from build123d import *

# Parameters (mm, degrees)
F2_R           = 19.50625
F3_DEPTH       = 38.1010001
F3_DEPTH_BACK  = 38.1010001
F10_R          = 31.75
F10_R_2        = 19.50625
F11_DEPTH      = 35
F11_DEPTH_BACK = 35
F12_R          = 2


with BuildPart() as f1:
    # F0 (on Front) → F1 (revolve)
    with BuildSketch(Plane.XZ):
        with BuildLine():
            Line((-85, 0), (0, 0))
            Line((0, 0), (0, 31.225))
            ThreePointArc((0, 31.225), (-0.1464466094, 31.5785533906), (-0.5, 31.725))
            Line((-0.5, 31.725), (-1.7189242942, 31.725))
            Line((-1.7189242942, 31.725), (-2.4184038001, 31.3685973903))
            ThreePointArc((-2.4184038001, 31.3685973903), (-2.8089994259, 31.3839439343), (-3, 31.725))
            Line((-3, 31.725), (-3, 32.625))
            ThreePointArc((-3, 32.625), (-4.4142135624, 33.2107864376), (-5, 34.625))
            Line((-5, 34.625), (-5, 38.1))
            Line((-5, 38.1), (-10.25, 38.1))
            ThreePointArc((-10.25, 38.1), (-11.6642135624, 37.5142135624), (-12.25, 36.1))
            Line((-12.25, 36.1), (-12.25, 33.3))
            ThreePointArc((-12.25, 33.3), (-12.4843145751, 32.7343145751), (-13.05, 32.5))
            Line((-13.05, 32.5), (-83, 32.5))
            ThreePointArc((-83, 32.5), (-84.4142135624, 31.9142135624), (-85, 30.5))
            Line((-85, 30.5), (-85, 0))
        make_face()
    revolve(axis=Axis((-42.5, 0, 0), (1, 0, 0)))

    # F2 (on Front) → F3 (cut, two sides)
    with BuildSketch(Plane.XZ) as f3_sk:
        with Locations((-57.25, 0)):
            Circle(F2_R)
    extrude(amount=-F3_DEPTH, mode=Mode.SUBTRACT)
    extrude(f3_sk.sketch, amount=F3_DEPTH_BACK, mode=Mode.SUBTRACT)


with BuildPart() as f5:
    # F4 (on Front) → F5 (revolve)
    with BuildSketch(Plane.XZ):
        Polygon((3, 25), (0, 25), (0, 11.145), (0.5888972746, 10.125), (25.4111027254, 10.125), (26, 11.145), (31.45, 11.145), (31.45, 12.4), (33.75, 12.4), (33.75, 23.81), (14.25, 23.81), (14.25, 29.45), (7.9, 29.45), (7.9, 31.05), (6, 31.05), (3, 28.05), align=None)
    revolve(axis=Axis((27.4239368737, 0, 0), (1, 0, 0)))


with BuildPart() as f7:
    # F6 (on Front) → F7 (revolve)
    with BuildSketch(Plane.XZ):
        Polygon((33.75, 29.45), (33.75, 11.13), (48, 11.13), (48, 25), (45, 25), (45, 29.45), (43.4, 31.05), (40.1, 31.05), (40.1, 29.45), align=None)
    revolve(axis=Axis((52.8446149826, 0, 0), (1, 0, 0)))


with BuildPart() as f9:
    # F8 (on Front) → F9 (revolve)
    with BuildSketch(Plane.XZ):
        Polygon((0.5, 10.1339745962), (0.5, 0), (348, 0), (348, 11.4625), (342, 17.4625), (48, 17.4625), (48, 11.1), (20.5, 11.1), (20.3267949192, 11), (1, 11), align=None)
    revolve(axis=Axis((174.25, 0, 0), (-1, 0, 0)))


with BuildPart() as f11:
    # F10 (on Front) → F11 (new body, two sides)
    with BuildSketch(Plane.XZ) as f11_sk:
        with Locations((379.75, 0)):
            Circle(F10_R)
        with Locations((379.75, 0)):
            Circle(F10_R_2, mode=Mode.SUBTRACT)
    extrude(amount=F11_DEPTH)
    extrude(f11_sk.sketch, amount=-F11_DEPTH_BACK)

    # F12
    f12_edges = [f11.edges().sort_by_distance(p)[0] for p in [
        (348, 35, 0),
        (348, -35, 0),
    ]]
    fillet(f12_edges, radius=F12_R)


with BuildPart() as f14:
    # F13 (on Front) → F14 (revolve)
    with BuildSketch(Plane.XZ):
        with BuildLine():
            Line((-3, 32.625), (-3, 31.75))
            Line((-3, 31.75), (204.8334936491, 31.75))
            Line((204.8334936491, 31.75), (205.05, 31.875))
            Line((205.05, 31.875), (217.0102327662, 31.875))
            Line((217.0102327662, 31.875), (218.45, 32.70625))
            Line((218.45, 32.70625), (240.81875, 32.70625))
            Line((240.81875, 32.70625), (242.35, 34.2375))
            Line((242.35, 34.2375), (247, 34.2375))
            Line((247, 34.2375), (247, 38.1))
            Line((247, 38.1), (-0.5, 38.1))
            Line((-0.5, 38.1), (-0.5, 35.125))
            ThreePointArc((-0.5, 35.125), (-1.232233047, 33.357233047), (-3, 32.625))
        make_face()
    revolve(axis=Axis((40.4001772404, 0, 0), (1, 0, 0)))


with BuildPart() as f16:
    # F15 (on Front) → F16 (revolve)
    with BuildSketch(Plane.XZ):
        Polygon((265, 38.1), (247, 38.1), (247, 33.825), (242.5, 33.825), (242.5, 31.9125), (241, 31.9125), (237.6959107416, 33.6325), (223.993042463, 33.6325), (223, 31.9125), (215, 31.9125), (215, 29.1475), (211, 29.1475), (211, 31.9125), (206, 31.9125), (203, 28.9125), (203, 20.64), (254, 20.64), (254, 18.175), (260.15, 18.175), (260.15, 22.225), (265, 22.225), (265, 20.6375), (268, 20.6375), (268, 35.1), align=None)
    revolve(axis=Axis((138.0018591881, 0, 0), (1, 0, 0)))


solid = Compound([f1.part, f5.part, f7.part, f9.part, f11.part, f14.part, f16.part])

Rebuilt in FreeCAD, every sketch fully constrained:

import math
import FreeCAD as App
import Part
import Sketcher
Q = App.Units.Quantity


def edges_at(feature, points):
    """Names of the edges that pass closest to the given points."""
    edges = feature.Shape.Edges
    near = lambda p: min(range(len(edges)), key=lambda i: edges[i].distToShape(Part.Vertex(*p))[0])
    return sorted({f"Edge{near(p) + 1}" for p in points})


def add_polygon(sketch, points):
    """Adds a closed chain of lines whose ends are joined by coincident constraints."""
    first, n = sketch.GeometryCount, len(points)
    for a, b in zip(points, points[1:] + points[:1]):
        sketch.addGeometry(Part.LineSegment(App.Vector(*a, 0), App.Vector(*b, 0)), False)
    for i in range(n):
        sketch.addConstraint(Sketcher.Constraint("Coincident", first + i, 2, first + (i + 1) % n, 1))

doc = App.newDocument("Part")
params = doc.addObject("Spreadsheet::Sheet", "Params")
for row, (alias, value) in enumerate([
    ("sketch1_radius", "2 mm"),
    ("sketch1_radius2", "0.5 mm"),
    ("sketch1_radius3", "0.4 mm"),
    ("sketch1_radius4", "0.8 mm"),
    ("sketch1_width", "85 mm"),
    ("revolution_angle", "360 deg"),
    ("sketch3_width", "3 mm"),
    ("sketch3_width2", "2.3 mm"),
    ("sketch3_width3", "19.5 mm"),
    ("sketch3_width4", "1.9 mm"),
    ("sketch3_height", "1.6 mm"),
    ("revolution2_angle", "360 deg"),
    ("sketch4_width", "3 mm"),
    ("sketch4_width2", "3.3 mm"),
    ("sketch4_height", "1.6 mm"),
    ("sketch4_width3", "14.25 mm"),
    ("sketch4_height2", "18.32 mm"),
    ("revolution3_angle", "360 deg"),
    ("sketch5_width", "294 mm"),
    ("sketch5_length", "1 mm"),
    ("sketch5_width2", "347.5 mm"),
    ("sketch5_width3", "27.5 mm"),
    ("sketch5_length2", "0.2 mm"),
    ("revolution4_angle", "360 deg"),
    ("sketch6_diameter", "63.5 mm"),
    ("pad1_length", "35 mm"),
    ("pad1_length2", "35 mm"),
    ("fillet_radius", "2 mm"),
    ("sketch7_radius", "2.5 mm"),
    ("sketch7_width", "247.5 mm"),
    ("sketch7_width2", "4.65 mm"),
    ("sketch7_length", "0.25 mm"),
    ("revolution5_angle", "360 deg"),
    ("sketch8_width", "18 mm"),
    ("sketch8_width2", "8 mm"),
    ("sketch8_width3", "4 mm"),
    ("sketch8_width4", "5 mm"),
    ("sketch8_width5", "51 mm"),
    ("revolution6_angle", "360 deg"),
], start=1):
    params.set(f"A{row}", alias)
    params.set(f"B{row}", "=" + value)
    params.setAlias(f"B{row}", alias)

body = doc.addObject("PartDesign::Body", "Body")

# Sketch on XZ plane
sketch1 = body.newObject("Sketcher::SketchObject", "Sketch")
sketch1.AttachmentSupport = (doc.getObject("XZ_Plane"), [""])
sketch1.MapMode = "FlatFace"
sketch1.addGeometry([
    Part.LineSegment(App.Vector(-85, 0, 0), App.Vector(0, 0, 0)),  # 0
    Part.LineSegment(App.Vector(0, 0, 0), App.Vector(0, 31.23, 0)),  # 1
    Part.ArcOfCircle(Part.Circle(App.Vector(-0.5, 31.23, 0), App.Vector(0, 0, 1), 0.5), math.radians(0), math.radians(90)),  # 2
    Part.LineSegment(App.Vector(-0.5, 31.73, 0), App.Vector(-1.72, 31.73, 0)),  # 3
    Part.LineSegment(App.Vector(-1.72, 31.73, 0), App.Vector(-2.42, 31.37, 0)),  # 4
    Part.ArcOfCircle(Part.Circle(App.Vector(-2.6, 31.73, 0), App.Vector(0, 0, 1), 0.4), math.radians(180), math.radians(297)),  # 5
    Part.LineSegment(App.Vector(-3, 31.73, 0), App.Vector(-3, 32.62, 0)),  # 6
    Part.ArcOfCircle(Part.Circle(App.Vector(-3, 34.62, 0), App.Vector(0, 0, 1), 2), math.radians(180), math.radians(270)),  # 7
    Part.LineSegment(App.Vector(-5, 34.62, 0), App.Vector(-5, 38.1, 0)),  # 8
    Part.LineSegment(App.Vector(-5, 38.1, 0), App.Vector(-10.25, 38.1, 0)),  # 9
    Part.ArcOfCircle(Part.Circle(App.Vector(-10.25, 36.1, 0), App.Vector(0, 0, 1), 2), math.radians(90), math.radians(180)),  # 10
    Part.LineSegment(App.Vector(-12.25, 36.1, 0), App.Vector(-12.25, 33.3, 0)),  # 11
    Part.ArcOfCircle(Part.Circle(App.Vector(-13.05, 33.3, 0), App.Vector(0, 0, 1), 0.8), math.radians(-90), math.radians(0)),  # 12
    Part.LineSegment(App.Vector(-13.05, 32.5, 0), App.Vector(-83, 32.5, 0)),  # 13
    Part.ArcOfCircle(Part.Circle(App.Vector(-83, 30.5, 0), App.Vector(0, 0, 1), 2), math.radians(90), math.radians(180)),  # 14
    Part.LineSegment(App.Vector(-85, 30.5, 0), App.Vector(-85, 0, 0)),  # 15
], False)
sketch1.addConstraint([
    Sketcher.Constraint("Coincident", 0, 2, 1, 1),
    Sketcher.Constraint("Tangent", 1, 2, 2, 1),
    Sketcher.Constraint("Tangent", 2, 2, 3, 1),
    Sketcher.Constraint("Coincident", 3, 2, 4, 1),
    Sketcher.Constraint("Tangent", 4, 2, 5, 2),
    Sketcher.Constraint("Tangent", 5, 1, 6, 1),
    Sketcher.Constraint("Coincident", 6, 2, 7, 2),
    Sketcher.Constraint("Tangent", 7, 1, 8, 1),
    Sketcher.Constraint("Coincident", 8, 2, 9, 1),
    Sketcher.Constraint("Tangent", 9, 2, 10, 1),
    Sketcher.Constraint("Tangent", 10, 2, 11, 1),
    Sketcher.Constraint("Tangent", 11, 2, 12, 2),
    Sketcher.Constraint("Tangent", 12, 1, 13, 1),
    Sketcher.Constraint("Tangent", 13, 2, 14, 1),
    Sketcher.Constraint("Tangent", 14, 2, 15, 1),
    Sketcher.Constraint("Coincident", 15, 2, 0, 1),
    Sketcher.Constraint("Horizontal", 0),
    Sketcher.Constraint("Vertical", 1),
    Sketcher.Constraint("Horizontal", 3),
    Sketcher.Constraint("Vertical", 6),
    Sketcher.Constraint("Vertical", 8),
    Sketcher.Constraint("Horizontal", 9),
    Sketcher.Constraint("Vertical", 11),
    Sketcher.Constraint("Horizontal", 13),
    Sketcher.Constraint("Vertical", 15),
    Sketcher.Constraint("Coincident", 0, 2, -1, 1),
    Sketcher.Constraint("Equal", 7, 10),
    Sketcher.Constraint("Equal", 10, 14),
    Sketcher.Constraint("Horizontal", 5, 3, 2, 2),
    Sketcher.Constraint("Vertical", 7, 3, 5, 1),
    Sketcher.Constraint("Radius", 7, 2.0),
    Sketcher.Constraint("Radius", 2, 0.5),
    Sketcher.Constraint("Radius", 5, 0.4),
    Sketcher.Constraint("Radius", 12, 0.8),
    Sketcher.Constraint("DistanceX", 0, 1, 0, 2, 85.0),
    Sketcher.Constraint("Angle", 4, Q("-153 deg")),
    Sketcher.Constraint("DistanceY", 6, 1, 6, 2, 0.9),
    Sketcher.Constraint("DistanceY", 11, 2, 11, 1, 2.8),
    Sketcher.Constraint("DistanceY", 15, 2, 15, 1, 30.5),
    Sketcher.Constraint("DistanceX", 7, 3, -1, 1, 3.0),
    Sketcher.Constraint("DistanceX", 9, 2, 9, 1, 5.25),
    Sketcher.Constraint("DistanceY", 1, 1, 1, 2, 31.225),
])
sketch1.setExpression("Constraints[30]", "Params.sketch1_radius")
sketch1.setExpression("Constraints[31]", "Params.sketch1_radius2")
sketch1.setExpression("Constraints[32]", "Params.sketch1_radius3")
sketch1.setExpression("Constraints[33]", "Params.sketch1_radius4")
sketch1.setExpression("Constraints[34]", "Params.sketch1_width")
revolution = body.newObject("PartDesign::Revolution", "Revolution")
revolution.Profile = sketch1
revolution.ReferenceAxis = (sketch1, ["H_Axis"])
revolution.setExpression("Angle", "Params.revolution_angle")

# Sketch on XZ plane
sketch2 = body.newObject("Sketcher::SketchObject", "Sketch001")
sketch2.AttachmentSupport = (doc.getObject("XZ_Plane"), [""])
sketch2.MapMode = "FlatFace"
sketch2.addGeometry(Part.Circle(App.Vector(-57, 0, 0), App.Vector(0, 0, 1), 20), False)
sketch2.addConstraint([
    Sketcher.Constraint("PointOnObject", 0, 3, -1),
    Sketcher.Constraint("Diameter", 0, 39.0125),
    Sketcher.Constraint("DistanceX", 0, 3, -1, 1, 57.25),
])
pocket1 = body.newObject("PartDesign::Pocket", "Pocket")
pocket1.Profile = sketch2
pocket1.Type = "ThroughAll"
pocket1.Midplane = True
body2 = doc.addObject("PartDesign::Body", "Body001")

# Sketch on XZ plane
sketch3 = body2.newObject("Sketcher::SketchObject", "Sketch002")
sketch3.AttachmentSupport = (doc.getObject("XZ_Plane001"), [""])
sketch3.MapMode = "FlatFace"
add_polygon(sketch3, [(3, 25), (0, 25), (0, 11.1), (0.6, 10.1), (25.4, 10.1), (26, 11.1), (31.4, 11.1), (31.4, 12.4), (33.8, 12.4), (33.8, 23.8), (14.2, 23.8), (14.2, 29.4), (7.9, 29.4), (7.9, 31.1), (6, 31.1), (3, 28.1)])  # lines 0-15
sketch3.addConstraint([
    Sketcher.Constraint("Horizontal", 0),
    Sketcher.Constraint("Vertical", 1),
    Sketcher.Constraint("Horizontal", 3),
    Sketcher.Constraint("Horizontal", 5),
    Sketcher.Constraint("Vertical", 6),
    Sketcher.Constraint("Horizontal", 7),
    Sketcher.Constraint("Vertical", 8),
    Sketcher.Constraint("Horizontal", 9),
    Sketcher.Constraint("Vertical", 10),
    Sketcher.Constraint("Horizontal", 11),
    Sketcher.Constraint("Vertical", 12),
    Sketcher.Constraint("Horizontal", 13),
    Sketcher.Constraint("Vertical", 15),
    Sketcher.Constraint("PointOnObject", 0, 2, -2),
    Sketcher.Constraint("Horizontal", 1, 2, 4, 2),
    Sketcher.Constraint("Equal", 2, 4),
    Sketcher.Constraint("DistanceX", 0, 2, 0, 1, 3.0),
    Sketcher.Constraint("Angle", 2, Q("-60 deg")),
    Sketcher.Constraint("Angle", 14, Q("-135 deg")),
    Sketcher.Constraint("DistanceX", 7, 1, 7, 2, 2.3),
    Sketcher.Constraint("DistanceX", 9, 2, 9, 1, 19.5),
    Sketcher.Constraint("DistanceX", 13, 2, 13, 1, 1.9),
    Sketcher.Constraint("DistanceY", 12, 1, 12, 2, 1.6),
    Sketcher.Constraint("DistanceY", -1, 1, 0, 2, 25.0),
    Sketcher.Constraint("DistanceX", -1, 1, 4, 2, 26.0),
    Sketcher.Constraint("DistanceX", -1, 1, 13, 2, 6.0),
    Sketcher.Constraint("DistanceX", 5, 1, 5, 2, 5.45),
    Sketcher.Constraint("DistanceY", 8, 1, 8, 2, 11.41),
    Sketcher.Constraint("DistanceY", 10, 1, 10, 2, 5.64),
    Sketcher.Constraint("DistanceY", 15, 2, 15, 1, 3.05),
    Sketcher.Constraint("DistanceY", 1, 2, 1, 1, 13.855),
    Sketcher.Constraint("DistanceY", 2, 2, 1, 2, 1.02),
])
sketch3.setExpression("Constraints[32]", "Params.sketch3_width")
sketch3.setExpression("Constraints[35]", "Params.sketch3_width2")
sketch3.setExpression("Constraints[36]", "Params.sketch3_width3")
sketch3.setExpression("Constraints[37]", "Params.sketch3_width4")
sketch3.setExpression("Constraints[38]", "Params.sketch3_height")
revolution2 = body2.newObject("PartDesign::Revolution", "Revolution001")
revolution2.Profile = sketch3
revolution2.ReferenceAxis = (sketch3, ["H_Axis"])
revolution2.setExpression("Angle", "Params.revolution2_angle")
body3 = doc.addObject("PartDesign::Body", "Body002")

# Sketch on XZ plane
sketch4 = body3.newObject("Sketcher::SketchObject", "Sketch003")
sketch4.AttachmentSupport = (doc.getObject("XZ_Plane002"), [""])
sketch4.MapMode = "FlatFace"
add_polygon(sketch4, [(33.8, 29.4), (33.8, 11.1), (48, 11.1), (48, 25), (45, 25), (45, 29.4), (43.4, 31.1), (40.1, 31.1), (40.1, 29.4)])  # lines 0-8
sketch4.addConstraint([
    Sketcher.Constraint("Vertical", 0),
    Sketcher.Constraint("Horizontal", 1),
    Sketcher.Constraint("Vertical", 2),
    Sketcher.Constraint("Horizontal", 3),
    Sketcher.Constraint("Vertical", 4),
    Sketcher.Constraint("Horizontal", 6),
    Sketcher.Constraint("Vertical", 7),
    Sketcher.Constraint("Horizontal", 8),
    Sketcher.Constraint("Horizontal", 4, 2, 7, 2),
    Sketcher.Constraint("DistanceX", 3, 2, 3, 1, 3.0),
    Sketcher.Constraint("Angle", 5, Q("135 deg")),
    Sketcher.Constraint("DistanceX", 6, 2, 6, 1, 3.3),
    Sketcher.Constraint("DistanceY", 7, 2, 7, 1, 1.6),
    Sketcher.Constraint("DistanceX", -1, 1, 1, 2, 48.0),
    Sketcher.Constraint("DistanceY", -1, 1, 2, 2, 25.0),
    Sketcher.Constraint("DistanceX", 1, 1, 1, 2, 14.25),
    Sketcher.Constraint("DistanceY", 0, 2, 0, 1, 18.32),
    Sketcher.Constraint("DistanceY", 2, 1, 2, 2, 13.87),
])
sketch4.setExpression("Constraints[18]", "Params.sketch4_width")
sketch4.setExpression("Constraints[20]", "Params.sketch4_width2")
sketch4.setExpression("Constraints[21]", "Params.sketch4_height")
sketch4.setExpression("Constraints[24]", "Params.sketch4_width3")
sketch4.setExpression("Constraints[25]", "Params.sketch4_height2")
revolution3 = body3.newObject("PartDesign::Revolution", "Revolution002")
revolution3.Profile = sketch4
revolution3.ReferenceAxis = (sketch4, ["H_Axis"])
revolution3.setExpression("Angle", "Params.revolution3_angle")
body4 = doc.addObject("PartDesign::Body", "Body003")

# Sketch on XZ plane
sketch5 = body4.newObject("Sketcher::SketchObject", "Sketch004")
sketch5.AttachmentSupport = (doc.getObject("XZ_Plane003"), [""])
sketch5.MapMode = "FlatFace"
add_polygon(sketch5, [(0.5, 10.13), (0.5, 0), (348, 0), (348, 11.46), (342, 17.46), (48, 17.46), (48, 11.1), (20.5, 11.1), (20.33, 11), (1, 11)])  # lines 0-9
sketch5.addConstraint([
    Sketcher.Constraint("Vertical", 0),
    Sketcher.Constraint("Horizontal", 1),
    Sketcher.Constraint("Vertical", 2),
    Sketcher.Constraint("Horizontal", 4),
    Sketcher.Constraint("Vertical", 5),
    Sketcher.Constraint("Horizontal", 6),
    Sketcher.Constraint("Horizontal", 8),
    Sketcher.Constraint("PointOnObject", 0, 2, -1),
    Sketcher.Constraint("DistanceX", 4, 2, 4, 1, 294.0),
    Sketcher.Constraint("Angle", 3, Q("135 deg")),
    Sketcher.Constraint("Angle", 7, Q("-150 deg")),
    Sketcher.Constraint("Angle", 9, Q("-120 deg")),
    Sketcher.Constraint("Distance", 9, 1.0),
    Sketcher.Constraint("DistanceX", 1, 1, 1, 2, 347.5),
    Sketcher.Constraint("DistanceX", 6, 2, 6, 1, 27.5),
    Sketcher.Constraint("DistanceX", -1, 1, 1, 2, 348.0),
    Sketcher.Constraint("DistanceX", -1, 1, 3, 2, 342.0),
    Sketcher.Constraint("DistanceY", -1, 1, 7, 2, 11.0),
    Sketcher.Constraint("Distance", 7, 0.2),
    Sketcher.Constraint("DistanceY", 2, 1, 2, 2, 11.4625),
])
sketch5.setExpression("Constraints[18]", "Params.sketch5_width")
sketch5.setExpression("Constraints[22]", "Params.sketch5_length")
sketch5.setExpression("Constraints[23]", "Params.sketch5_width2")
sketch5.setExpression("Constraints[24]", "Params.sketch5_width3")
sketch5.setExpression("Constraints[28]", "Params.sketch5_length2")
revolution4 = body4.newObject("PartDesign::Revolution", "Revolution003")
revolution4.Profile = sketch5
revolution4.ReferenceAxis = (sketch5, ["H_Axis"])
revolution4.setExpression("Angle", "Params.revolution4_angle")
body5 = doc.addObject("PartDesign::Body", "Body004")

# Sketch on XZ plane
sketch6 = body5.newObject("Sketcher::SketchObject", "Sketch005")
sketch6.AttachmentSupport = (doc.getObject("XZ_Plane004"), [""])
sketch6.MapMode = "FlatFace"
sketch6.addGeometry([
    Part.Circle(App.Vector(380, 0, 0), App.Vector(0, 0, 1), 32),
    Part.Circle(App.Vector(380, 0, 0), App.Vector(0, 0, 1), 20),
], False)
sketch6.addConstraint([
    Sketcher.Constraint("Coincident", 1, 3, 0, 3),
    Sketcher.Constraint("PointOnObject", 0, 3, -1),
    Sketcher.Constraint("Diameter", 0, 63.5),
    Sketcher.Constraint("Diameter", 1, 39.0125),
    Sketcher.Constraint("DistanceX", -1, 1, 0, 3, 379.75),
])
sketch6.setExpression("Constraints[2]", "Params.sketch6_diameter")
pad1 = body5.newObject("PartDesign::Pad", "Pad")
pad1.Profile = sketch6
pad1.Type = "TwoLengths"
pad1.setExpression("Length", "Params.pad1_length")
pad1.setExpression("Length2", "Params.pad1_length2")
doc.recompute()

fillet = body5.newObject("PartDesign::Fillet", "Fillet")
fillet.Base = (pad1, edges_at(pad1, [(348, 35, 0), (348, -35, 0)]))
fillet.setExpression("Radius", "Params.fillet_radius")
body6 = doc.addObject("PartDesign::Body", "Body005")

# Sketch on XZ plane
sketch7 = body6.newObject("Sketcher::SketchObject", "Sketch006")
sketch7.AttachmentSupport = (doc.getObject("XZ_Plane005"), [""])
sketch7.MapMode = "FlatFace"
sketch7.addGeometry([
    Part.LineSegment(App.Vector(-3, 32.62, 0), App.Vector(-3, 31.75, 0)),  # 0
    Part.LineSegment(App.Vector(-3, 31.75, 0), App.Vector(204.83, 31.75, 0)),  # 1
    Part.LineSegment(App.Vector(204.83, 31.75, 0), App.Vector(205.05, 31.88, 0)),  # 2
    Part.LineSegment(App.Vector(205.05, 31.88, 0), App.Vector(217.01, 31.88, 0)),  # 3
    Part.LineSegment(App.Vector(217.01, 31.88, 0), App.Vector(218.45, 32.71, 0)),  # 4
    Part.LineSegment(App.Vector(218.45, 32.71, 0), App.Vector(240.82, 32.71, 0)),  # 5
    Part.LineSegment(App.Vector(240.82, 32.71, 0), App.Vector(242.35, 34.24, 0)),  # 6
    Part.LineSegment(App.Vector(242.35, 34.24, 0), App.Vector(247, 34.24, 0)),  # 7
    Part.LineSegment(App.Vector(247, 34.24, 0), App.Vector(247, 38.1, 0)),  # 8
    Part.LineSegment(App.Vector(247, 38.1, 0), App.Vector(-0.5, 38.1, 0)),  # 9
    Part.LineSegment(App.Vector(-0.5, 38.1, 0), App.Vector(-0.5, 35.12, 0)),  # 10
    Part.ArcOfCircle(Part.Circle(App.Vector(-3, 35.12, 0), App.Vector(0, 0, 1), 2.5), math.radians(-90), math.radians(0)),  # 11
], False)
sketch7.addConstraint([
    Sketcher.Constraint("Coincident", 0, 2, 1, 1),
    Sketcher.Constraint("Coincident", 1, 2, 2, 1),
    Sketcher.Constraint("Coincident", 2, 2, 3, 1),
    Sketcher.Constraint("Coincident", 3, 2, 4, 1),
    Sketcher.Constraint("Coincident", 4, 2, 5, 1),
    Sketcher.Constraint("Coincident", 5, 2, 6, 1),
    Sketcher.Constraint("Coincident", 6, 2, 7, 1),
    Sketcher.Constraint("Coincident", 7, 2, 8, 1),
    Sketcher.Constraint("Coincident", 8, 2, 9, 1),
    Sketcher.Constraint("Coincident", 9, 2, 10, 1),
    Sketcher.Constraint("Tangent", 10, 2, 11, 2),
    Sketcher.Constraint("Coincident", 11, 1, 0, 1),
    Sketcher.Constraint("Vertical", 0),
    Sketcher.Constraint("Horizontal", 1),
    Sketcher.Constraint("Horizontal", 3),
    Sketcher.Constraint("Horizontal", 5),
    Sketcher.Constraint("Horizontal", 7),
    Sketcher.Constraint("Vertical", 8),
    Sketcher.Constraint("Horizontal", 9),
    Sketcher.Constraint("Vertical", 10),
    Sketcher.Constraint("Parallel", 2, 4),
    Sketcher.Constraint("Vertical", 11, 3, 0, 2),
    Sketcher.Constraint("Radius", 11, 2.5),
    Sketcher.Constraint("Angle", 2, Q("30 deg")),
    Sketcher.Constraint("Angle", 6, Q("45 deg")),
    Sketcher.Constraint("DistanceX", 9, 2, 9, 1, 247.5),
    Sketcher.Constraint("DistanceX", 11, 3, -1, 1, 3.0),
    Sketcher.Constraint("DistanceX", 7, 1, 7, 2, 4.65),
    Sketcher.Constraint("DistanceY", -1, 1, 8, 2, 38.1),
    Sketcher.Constraint("DistanceX", 2, 2, 4, 2, 13.4),
    Sketcher.Constraint("DistanceX", 4, 2, 6, 2, 23.9),
    Sketcher.Constraint("Distance", 2, 0.25),
    Sketcher.Constraint("DistanceY", 0, 2, 0, 1, 0.875),
    Sketcher.Constraint("DistanceY", 10, 2, 10, 1, 2.975),
    Sketcher.Constraint("DistanceY", 8, 1, 8, 2, 3.8625),
    Sketcher.Constraint("Distance", 4, 1.6625),
])
sketch7.setExpression("Constraints[22]", "Params.sketch7_radius")
sketch7.setExpression("Constraints[25]", "Params.sketch7_width")
sketch7.setExpression("Constraints[27]", "Params.sketch7_width2")
sketch7.setExpression("Constraints[31]", "Params.sketch7_length")
revolution5 = body6.newObject("PartDesign::Revolution", "Revolution004")
revolution5.Profile = sketch7
revolution5.ReferenceAxis = (sketch7, ["H_Axis"])
revolution5.setExpression("Angle", "Params.revolution5_angle")
body7 = doc.addObject("PartDesign::Body", "Body006")

# Sketch on XZ plane
sketch8 = body7.newObject("Sketcher::SketchObject", "Sketch007")
sketch8.AttachmentSupport = (doc.getObject("XZ_Plane006"), [""])
sketch8.MapMode = "FlatFace"
add_polygon(sketch8, [(265, 38.1), (247, 38.1), (247, 33.8), (242.5, 33.8), (242.5, 31.9), (241, 31.9), (237.7, 33.6), (224, 33.6), (223, 31.9), (215, 31.9), (215, 29.1), (211, 29.1), (211, 31.9), (206, 31.9), (203, 28.9), (203, 20.6), (254, 20.6), (254, 18.2), (260.1, 18.2), (260.1, 22.2), (265, 22.2), (265, 20.6), (268, 20.6), (268, 35.1)])  # lines 0-23
sketch8.addConstraint([
    Sketcher.Constraint("Horizontal", 0),
    Sketcher.Constraint("Vertical", 1),
    Sketcher.Constraint("Horizontal", 2),
    Sketcher.Constraint("Vertical", 3),
    Sketcher.Constraint("Horizontal", 4),
    Sketcher.Constraint("Horizontal", 6),
    Sketcher.Constraint("Horizontal", 8),
    Sketcher.Constraint("Vertical", 9),
    Sketcher.Constraint("Horizontal", 10),
    Sketcher.Constraint("Vertical", 11),
    Sketcher.Constraint("Horizontal", 12),
    Sketcher.Constraint("Vertical", 14),
    Sketcher.Constraint("Horizontal", 15),
    Sketcher.Constraint("Vertical", 16),
    Sketcher.Constraint("Horizontal", 17),
    Sketcher.Constraint("Vertical", 18),
    Sketcher.Constraint("Horizontal", 19),
    Sketcher.Constraint("Vertical", 20),
    Sketcher.Constraint("Horizontal", 21),
    Sketcher.Constraint("Vertical", 22),
    Sketcher.Constraint("Perpendicular", 13, 23),
    Sketcher.Constraint("Horizontal", 4, 2, 7, 2),
    Sketcher.Constraint("Horizontal", 8, 2, 11, 2),
    Sketcher.Constraint("Vertical", 20, 2, 23, 2),
    Sketcher.Constraint("Equal", 13, 23),
    Sketcher.Constraint("DistanceX", 0, 2, 0, 1, 18.0),
    Sketcher.Constraint("DistanceX", 8, 2, 8, 1, 8.0),
    Sketcher.Constraint("DistanceX", 10, 2, 10, 1, 4.0),
    Sketcher.Constraint("DistanceX", 12, 2, 12, 1, 5.0),
    Sketcher.Constraint("DistanceX", 15, 1, 15, 2, 51.0),
    Sketcher.Constraint("DistanceX", 21, 1, 21, 2, 3.0),
    Sketcher.Constraint("Angle", 7, Q("-120 deg")),
    Sketcher.Constraint("Angle", 13, Q("-135 deg")),
    Sketcher.Constraint("DistanceX", 2, 2, 2, 1, 4.5),
    Sketcher.Constraint("DistanceX", 4, 2, 4, 1, 1.5),
    Sketcher.Constraint("DistanceX", -1, 1, 0, 2, 247.0),
    Sketcher.Constraint("DistanceX", -1, 1, 7, 2, 223.0),
    Sketcher.Constraint("Angle", 5, Q("152.5 deg")),
    Sketcher.Constraint("DistanceX", 17, 1, 17, 2, 6.15),
    Sketcher.Constraint("DistanceY", 18, 1, 18, 2, 4.05),
    Sketcher.Constraint("DistanceY", -1, 1, 0, 2, 38.1),
    Sketcher.Constraint("DistanceY", 18, 2, 1, 2, 11.6),
    Sketcher.Constraint("DistanceY", 1, 2, 1, 1, 4.275),
    Sketcher.Constraint("DistanceY", 9, 2, 9, 1, 2.765),
    Sketcher.Constraint("DistanceY", 16, 2, 16, 1, 2.465),
    Sketcher.Constraint("DistanceY", 4, 2, 5, 2, 1.72),
    Sketcher.Constraint("DistanceY", 3, 2, 3, 1, 1.9125),
    Sketcher.Constraint("DistanceY", 20, 2, 20, 1, 1.5875),
])
sketch8.setExpression("Constraints[49]", "Params.sketch8_width")
sketch8.setExpression("Constraints[50]", "Params.sketch8_width2")
sketch8.setExpression("Constraints[51]", "Params.sketch8_width3")
sketch8.setExpression("Constraints[52]", "Params.sketch8_width4")
sketch8.setExpression("Constraints[53]", "Params.sketch8_width5")
revolution6 = body7.newObject("PartDesign::Revolution", "Revolution005")
revolution6.Profile = sketch8
revolution6.ReferenceAxis = (sketch8, ["H_Axis"])
revolution6.setExpression("Angle", "Params.revolution6_angle")

doc.recompute()
